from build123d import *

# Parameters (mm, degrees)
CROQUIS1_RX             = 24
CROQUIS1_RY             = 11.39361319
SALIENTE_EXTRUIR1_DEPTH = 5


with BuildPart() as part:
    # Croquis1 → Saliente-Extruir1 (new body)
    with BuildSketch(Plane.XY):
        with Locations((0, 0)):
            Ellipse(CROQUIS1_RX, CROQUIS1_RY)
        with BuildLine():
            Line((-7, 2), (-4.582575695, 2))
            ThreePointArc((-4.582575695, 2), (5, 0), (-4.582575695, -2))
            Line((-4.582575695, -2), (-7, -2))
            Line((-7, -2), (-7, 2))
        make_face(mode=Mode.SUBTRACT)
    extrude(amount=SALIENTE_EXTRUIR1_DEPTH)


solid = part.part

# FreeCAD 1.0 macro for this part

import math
import FreeCAD as App
import Part
import Sketcher
from FreeCAD import Vector
Q = App.Units.Quantity

doc = App.newDocument("Part")
body = doc.addObject("PartDesign::Body", "Body")

sketch1 = doc.addObject("Sketcher::SketchObject", "Sketch")
body.addObject(sketch1)
sketch1.AttachmentSupport = (doc.XY_Plane, [""])
sketch1.MapMode = "FlatFace"
sketch1.addGeometry(Part.Ellipse(Vector(24, 0, 0), Vector(0, 11.393613, 0), Vector(0, 0, 0)), False)
sketch1.addGeometry(Part.LineSegment(Vector(-7, -2, 0), Vector(-7, 2, 0)), False)
sketch1.addGeometry(Part.LineSegment(Vector(-7, 2, 0), Vector(-4.582576, 2, 0)), False)
sketch1.addGeometry(Part.ArcOfCircle(Part.Circle(Vector(0, 0, 0), Vector(0, 0, 1), 5), math.radians(-156.421822), math.radians(156.421822)), False)
sketch1.addGeometry(Part.LineSegment(Vector(-4.582576, -2, 0), Vector(-7, -2, 0)), False)
sketch1.addConstraint(Sketcher.Constraint("Block", 0))
sketch1.addConstraint(Sketcher.Constraint("Coincident", 1, 2, 2, 1))
sketch1.addConstraint(Sketcher.Constraint("Coincident", 2, 2, 3, 2))
sketch1.addConstraint(Sketcher.Constraint("Coincident", 3, 1, 4, 1))
sketch1.addConstraint(Sketcher.Constraint("Coincident", 4, 2, 1, 1))
sketch1.addConstraint(Sketcher.Constraint("Vertical", 1))
sketch1.addConstraint(Sketcher.Constraint("Horizontal", 2))
sketch1.addConstraint(Sketcher.Constraint("Horizontal", 4))
sketch1.addConstraint(Sketcher.Constraint("Coincident", 3, 3, -1, 1))
sketch1.addConstraint(Sketcher.Constraint("Vertical", 2, 2, 3, 1))
sketch1.addConstraint(Sketcher.Constraint("Radius", 3, Q("5 mm")))
sketch1.addConstraint(Sketcher.Constraint("DistanceY", 1, 1, 1, 2, Q("4 mm")))
sketch1.addConstraint(Sketcher.Constraint("DistanceX", 1, 2, -1, 1, Q("7 mm")))
pad1 = doc.addObject("PartDesign::Pad", "Pad")
body.addObject(pad1)
pad1.Profile = sketch1
pad1.Length = 5

doc.recompute()
